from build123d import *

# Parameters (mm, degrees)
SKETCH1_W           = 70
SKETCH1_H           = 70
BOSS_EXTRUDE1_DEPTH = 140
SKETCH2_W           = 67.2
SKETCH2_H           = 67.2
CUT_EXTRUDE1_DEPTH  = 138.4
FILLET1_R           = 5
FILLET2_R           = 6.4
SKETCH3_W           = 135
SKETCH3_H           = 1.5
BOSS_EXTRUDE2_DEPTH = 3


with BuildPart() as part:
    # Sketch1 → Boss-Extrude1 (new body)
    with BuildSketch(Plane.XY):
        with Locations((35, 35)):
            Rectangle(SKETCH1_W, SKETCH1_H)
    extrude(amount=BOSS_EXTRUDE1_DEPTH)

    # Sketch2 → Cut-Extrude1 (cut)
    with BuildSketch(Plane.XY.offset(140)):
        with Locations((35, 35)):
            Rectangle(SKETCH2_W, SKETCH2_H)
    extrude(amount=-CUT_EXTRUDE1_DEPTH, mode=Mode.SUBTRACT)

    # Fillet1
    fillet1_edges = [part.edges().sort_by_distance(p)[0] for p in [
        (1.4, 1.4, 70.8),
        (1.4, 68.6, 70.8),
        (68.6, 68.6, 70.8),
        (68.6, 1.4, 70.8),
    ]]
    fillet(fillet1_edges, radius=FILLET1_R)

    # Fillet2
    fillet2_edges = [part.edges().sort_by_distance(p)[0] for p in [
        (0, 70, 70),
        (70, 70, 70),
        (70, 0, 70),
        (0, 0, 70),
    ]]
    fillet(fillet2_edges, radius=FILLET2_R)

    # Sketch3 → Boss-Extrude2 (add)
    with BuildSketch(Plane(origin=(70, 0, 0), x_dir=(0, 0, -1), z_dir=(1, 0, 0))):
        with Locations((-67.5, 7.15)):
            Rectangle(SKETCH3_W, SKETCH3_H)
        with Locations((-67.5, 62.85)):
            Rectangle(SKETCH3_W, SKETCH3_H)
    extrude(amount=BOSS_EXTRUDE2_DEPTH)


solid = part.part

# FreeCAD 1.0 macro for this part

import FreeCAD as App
import Part
import Sketcher
from FreeCAD import Vector
Q = App.Units.Quantity


def edges_at(feature, points):
    """Names of the edges that pass closest to the given points."""
    edges = feature.Shape.Edges
    near = lambda p: min(range(len(edges)), key=lambda i: edges[i].distToShape(Part.Vertex(*p))[0])
    return sorted({f"Edge{near(p) + 1}" for p in points})


def add_polygon(sketch, points):
    """Adds a closed chain of lines whose ends are joined by coincident constraints."""
    first, n = sketch.GeometryCount, len(points)
    for a, b in zip(points, points[1:] + points[:1]):
        sketch.addGeometry(Part.LineSegment(App.Vector(*a, 0), App.Vector(*b, 0)), False)
    for i in range(n):
        sketch.addConstraint(Sketcher.Constraint("Coincident", first + i, 2, first + (i + 1) % n, 1))

doc = App.newDocument("Part")
body = doc.addObject("PartDesign::Body", "Body")

sketch1 = doc.addObject("Sketcher::SketchObject", "Sketch")
body.addObject(sketch1)
sketch1.AttachmentSupport = (doc.XY_Plane, [""])
sketch1.MapMode = "FlatFace"
add_polygon(sketch1, [(0, 70), (0, 0), (70, 0), (70, 70)])
sketch1.addConstraint([
    Sketcher.Constraint("Vertical", 0),
    Sketcher.Constraint("Horizontal", 1),
    Sketcher.Constraint("Vertical", 2),
    Sketcher.Constraint("Horizontal", 3),
    Sketcher.Constraint("Coincident", 0, 2, -1, 1),
    Sketcher.Constraint("Equal", 3, 0),
    Sketcher.Constraint("DistanceX", 1, 1, 1, 2, Q("70 mm")),
])
pad1 = doc.addObject("PartDesign::Pad", "Pad")
body.addObject(pad1)
pad1.Profile = sketch1
pad1.Length = 140

sketch2 = doc.addObject("Sketcher::SketchObject", "Sketch001")
body.addObject(sketch2)
sketch2.AttachmentSupport = (doc.XY_Plane, [""])
sketch2.MapMode = "FlatFace"
sketch2.AttachmentOffset = App.Placement(Vector(0, 0, 140), App.Rotation())
add_polygon(sketch2, [(1, 69), (1, 1), (69, 1), (69, 69)])
sketch2.addConstraint([
    Sketcher.Constraint("Vertical", 0),
    Sketcher.Constraint("Horizontal", 1),
    Sketcher.Constraint("Vertical", 2),
    Sketcher.Constraint("Horizontal", 3),
    Sketcher.Constraint("Equal", 3, 0),
    Sketcher.Constraint("DistanceX", 1, 1, 1, 2, Q("67.2 mm")),
    Sketcher.Constraint("DistanceX", -1, 1, 0, 2, Q("1.4 mm")),
    Sketcher.Constraint("DistanceY", -1, 1, 0, 2, Q("1.4 mm")),
])
pocket1 = doc.addObject("PartDesign::Pocket", "Pocket")
body.addObject(pocket1)
pocket1.Profile = sketch2
pocket1.Length = 138.4
doc.recompute()

fillet = doc.addObject("PartDesign::Fillet", "Fillet")
body.addObject(fillet)
fillet.Base = (pocket1, edges_at(pocket1, [
    (1.4, 1.4, 70.8),
    (1.4, 68.6, 70.8),
    (68.6, 68.6, 70.8),
    (68.6, 1.4, 70.8),
]))
fillet.Radius = 5
doc.recompute()

fillet2 = doc.addObject("PartDesign::Fillet", "Fillet001")
body.addObject(fillet2)
fillet2.Base = (fillet, edges_at(fillet, [
    (0, 70, 70),
    (70, 70, 70),
    (70, 0, 70),
    (0, 0, 70),
]))
fillet2.Radius = 6.4

sketch3 = doc.addObject("Sketcher::SketchObject", "Sketch002")
body.addObject(sketch3)
sketch3.AttachmentSupport = (doc.YZ_Plane, [""])
sketch3.MapMode = "FlatFace"
sketch3.AttachmentOffset = App.Placement(Vector(0, 0, 70), App.Rotation())
add_polygon(sketch3, [(7.9, 135), (6.4, 135), (6.4, 0), (7.9, 0)])
add_polygon(sketch3, [(63.6, 135), (62.1, 135), (62.1, 0), (63.6, 0)])
sketch3.addConstraint([
    Sketcher.Constraint("Horizontal", 0),
    Sketcher.Constraint("Vertical", 1),
    Sketcher.Constraint("Horizontal", 2),
    Sketcher.Constraint("Vertical", 3),
    Sketcher.Constraint("Horizontal", 4),
    Sketcher.Constraint("Vertical", 5),
    Sketcher.Constraint("Horizontal", 6),
    Sketcher.Constraint("Vertical", 7),
    Sketcher.Constraint("PointOnObject", 1, 2, -1),
    Sketcher.Constraint("PointOnObject", 5, 2, -1),
    Sketcher.Constraint("Horizontal", 3, 2, 4, 2),
    Sketcher.Constraint("Equal", 2, 4),
    Sketcher.Constraint("DistanceY", 1, 2, 1, 1, Q("135 mm")),
    Sketcher.Constraint("DistanceX", 0, 2, 0, 1, Q("1.5 mm")),
    Sketcher.Constraint("DistanceX", -1, 1, 0, 2, Q("6.4 mm")),
    Sketcher.Constraint("DistanceX", -1, 1, 4, 2, Q("62.1 mm")),
])
pad2 = doc.addObject("PartDesign::Pad", "Pad001")
body.addObject(pad2)
pad2.Profile = sketch3
pad2.Length = 3

doc.recompute()
